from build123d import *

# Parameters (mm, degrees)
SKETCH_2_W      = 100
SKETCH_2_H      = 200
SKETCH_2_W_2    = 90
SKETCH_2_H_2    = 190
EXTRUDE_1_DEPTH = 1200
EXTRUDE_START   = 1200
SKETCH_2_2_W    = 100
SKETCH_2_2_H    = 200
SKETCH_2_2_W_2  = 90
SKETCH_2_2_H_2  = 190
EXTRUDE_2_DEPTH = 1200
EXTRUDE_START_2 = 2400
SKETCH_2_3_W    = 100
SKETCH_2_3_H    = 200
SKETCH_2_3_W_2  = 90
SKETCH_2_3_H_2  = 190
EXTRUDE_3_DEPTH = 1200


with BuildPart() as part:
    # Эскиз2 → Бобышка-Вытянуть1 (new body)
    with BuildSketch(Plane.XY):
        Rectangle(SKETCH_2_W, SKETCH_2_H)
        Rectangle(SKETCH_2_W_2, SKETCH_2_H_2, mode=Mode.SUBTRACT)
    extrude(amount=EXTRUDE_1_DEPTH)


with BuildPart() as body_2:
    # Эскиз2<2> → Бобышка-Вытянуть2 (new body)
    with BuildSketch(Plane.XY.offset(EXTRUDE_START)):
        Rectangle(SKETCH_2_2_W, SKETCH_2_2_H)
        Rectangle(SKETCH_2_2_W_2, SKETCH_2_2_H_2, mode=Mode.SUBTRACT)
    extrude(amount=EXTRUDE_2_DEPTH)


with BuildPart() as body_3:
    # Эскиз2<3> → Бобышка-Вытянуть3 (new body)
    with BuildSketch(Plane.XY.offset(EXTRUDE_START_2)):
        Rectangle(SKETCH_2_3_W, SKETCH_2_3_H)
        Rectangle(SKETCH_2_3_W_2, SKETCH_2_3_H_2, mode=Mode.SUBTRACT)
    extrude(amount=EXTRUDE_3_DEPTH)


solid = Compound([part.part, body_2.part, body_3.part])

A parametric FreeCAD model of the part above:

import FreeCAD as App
import Part
import Sketcher
from FreeCAD import Vector
Q = App.Units.Quantity


def add_polygon(sketch, points):
    """Adds a closed chain of lines whose ends are joined by coincident constraints."""
    first, n = sketch.GeometryCount, len(points)
    for a, b in zip(points, points[1:] + points[:1]):
        sketch.addGeometry(Part.LineSegment(App.Vector(*a, 0), App.Vector(*b, 0)), False)
    for i in range(n):
        sketch.addConstraint(Sketcher.Constraint("Coincident", first + i, 2, first + (i + 1) % n, 1))

doc = App.newDocument("Part")
body = doc.addObject("PartDesign::Body", "Body")

sketch1 = body.newObject("Sketcher::SketchObject", "Sketch")
sketch1.AttachmentSupport = (doc.getObject("XY_Plane"), [""])
sketch1.MapMode = "FlatFace"
add_polygon(sketch1, [(-50, 100), (-50, -100), (50, -100), (50, 100)])
add_polygon(sketch1, [(45, -95), (-45, -95), (-45, 95), (45, 95)])
sketch1.addConstraint([
    Sketcher.Constraint("Vertical", 0),
    Sketcher.Constraint("Horizontal", 1),
    Sketcher.Constraint("Vertical", 2),
    Sketcher.Constraint("Horizontal", 3),
    Sketcher.Constraint("Horizontal", 4),
    Sketcher.Constraint("Vertical", 5),
    Sketcher.Constraint("Horizontal", 6),
    Sketcher.Constraint("Vertical", 7),
    Sketcher.Constraint("Symmetric", 0, 2, 2, 2, -1, 1),
    Sketcher.Constraint("Symmetric", 4, 2, 6, 2, -1, 1),
    Sketcher.Constraint("DistanceX", 1, 1, 1, 2, Q("100 mm")),
    Sketcher.Constraint("DistanceX", 4, 2, 4, 1, Q("90 mm")),
    Sketcher.Constraint("DistanceY", 0, 2, 0, 1, Q("200 mm")),
    Sketcher.Constraint("DistanceY", 5, 1, 5, 2, Q("190 mm")),
])
pad1 = body.newObject("PartDesign::Pad", "Pad")
pad1.Profile = sketch1
pad1.Length = 1200
body2 = doc.addObject("PartDesign::Body", "Body001")

sketch2 = body2.newObject("Sketcher::SketchObject", "Sketch001")
sketch2.AttachmentSupport = (doc.getObject("XY_Plane001"), [""])
sketch2.MapMode = "FlatFace"
sketch2.AttachmentOffset = App.Placement(Vector(0, 0, 1200), App.Rotation())
add_polygon(sketch2, [(-50, 100), (-50, -100), (50, -100), (50, 100)])
add_polygon(sketch2, [(45, -95), (-45, -95), (-45, 95), (45, 95)])
sketch2.addConstraint([
    Sketcher.Constraint("Vertical", 0),
    Sketcher.Constraint("Horizontal", 1),
    Sketcher.Constraint("Vertical", 2),
    Sketcher.Constraint("Horizontal", 3),
    Sketcher.Constraint("Horizontal", 4),
    Sketcher.Constraint("Vertical", 5),
    Sketcher.Constraint("Horizontal", 6),
    Sketcher.Constraint("Vertical", 7),
    Sketcher.Constraint("Symmetric", 0, 2, 2, 2, -1, 1),
    Sketcher.Constraint("Symmetric", 4, 2, 6, 2, -1, 1),
    Sketcher.Constraint("DistanceX", 1, 1, 1, 2, Q("100 mm")),
    Sketcher.Constraint("DistanceX", 4, 2, 4, 1, Q("90 mm")),
    Sketcher.Constraint("DistanceY", 0, 2, 0, 1, Q("200 mm")),
    Sketcher.Constraint("DistanceY", 5, 1, 5, 2, Q("190 mm")),
])
pad2 = body2.newObject("PartDesign::Pad", "Pad001")
pad2.Profile = sketch2
pad2.Length = 1200
body3 = doc.addObject("PartDesign::Body", "Body002")

sketch3 = body3.newObject("Sketcher::SketchObject", "Sketch002")
sketch3.AttachmentSupport = (doc.getObject("XY_Plane002"), [""])
sketch3.MapMode = "FlatFace"
sketch3.AttachmentOffset = App.Placement(Vector(0, 0, 2400), App.Rotation())
add_polygon(sketch3, [(-50, 100), (-50, -100), (50, -100), (50, 100)])
add_polygon(sketch3, [(45, -95), (-45, -95), (-45, 95), (45, 95)])
sketch3.addConstraint([
    Sketcher.Constraint("Vertical", 0),
    Sketcher.Constraint("Horizontal", 1),
    Sketcher.Constraint("Vertical", 2),
    Sketcher.Constraint("Horizontal", 3),
    Sketcher.Constraint("Horizontal", 4),
    Sketcher.Constraint("Vertical", 5),
    Sketcher.Constraint("Horizontal", 6),
    Sketcher.Constraint("Vertical", 7),
    Sketcher.Constraint("Symmetric", 0, 2, 2, 2, -1, 1),
    Sketcher.Constraint("Symmetric", 4, 2, 6, 2, -1, 1),
    Sketcher.Constraint("DistanceX", 1, 1, 1, 2, Q("100 mm")),
    Sketcher.Constraint("DistanceX", 4, 2, 4, 1, Q("90 mm")),
    Sketcher.Constraint("DistanceY", 0, 2, 0, 1, Q("200 mm")),
    Sketcher.Constraint("DistanceY", 5, 1, 5, 2, Q("190 mm")),
])
pad3 = body3.newObject("PartDesign::Pad", "Pad002")
pad3.Profile = sketch3
pad3.Length = 1200

doc.recompute()
